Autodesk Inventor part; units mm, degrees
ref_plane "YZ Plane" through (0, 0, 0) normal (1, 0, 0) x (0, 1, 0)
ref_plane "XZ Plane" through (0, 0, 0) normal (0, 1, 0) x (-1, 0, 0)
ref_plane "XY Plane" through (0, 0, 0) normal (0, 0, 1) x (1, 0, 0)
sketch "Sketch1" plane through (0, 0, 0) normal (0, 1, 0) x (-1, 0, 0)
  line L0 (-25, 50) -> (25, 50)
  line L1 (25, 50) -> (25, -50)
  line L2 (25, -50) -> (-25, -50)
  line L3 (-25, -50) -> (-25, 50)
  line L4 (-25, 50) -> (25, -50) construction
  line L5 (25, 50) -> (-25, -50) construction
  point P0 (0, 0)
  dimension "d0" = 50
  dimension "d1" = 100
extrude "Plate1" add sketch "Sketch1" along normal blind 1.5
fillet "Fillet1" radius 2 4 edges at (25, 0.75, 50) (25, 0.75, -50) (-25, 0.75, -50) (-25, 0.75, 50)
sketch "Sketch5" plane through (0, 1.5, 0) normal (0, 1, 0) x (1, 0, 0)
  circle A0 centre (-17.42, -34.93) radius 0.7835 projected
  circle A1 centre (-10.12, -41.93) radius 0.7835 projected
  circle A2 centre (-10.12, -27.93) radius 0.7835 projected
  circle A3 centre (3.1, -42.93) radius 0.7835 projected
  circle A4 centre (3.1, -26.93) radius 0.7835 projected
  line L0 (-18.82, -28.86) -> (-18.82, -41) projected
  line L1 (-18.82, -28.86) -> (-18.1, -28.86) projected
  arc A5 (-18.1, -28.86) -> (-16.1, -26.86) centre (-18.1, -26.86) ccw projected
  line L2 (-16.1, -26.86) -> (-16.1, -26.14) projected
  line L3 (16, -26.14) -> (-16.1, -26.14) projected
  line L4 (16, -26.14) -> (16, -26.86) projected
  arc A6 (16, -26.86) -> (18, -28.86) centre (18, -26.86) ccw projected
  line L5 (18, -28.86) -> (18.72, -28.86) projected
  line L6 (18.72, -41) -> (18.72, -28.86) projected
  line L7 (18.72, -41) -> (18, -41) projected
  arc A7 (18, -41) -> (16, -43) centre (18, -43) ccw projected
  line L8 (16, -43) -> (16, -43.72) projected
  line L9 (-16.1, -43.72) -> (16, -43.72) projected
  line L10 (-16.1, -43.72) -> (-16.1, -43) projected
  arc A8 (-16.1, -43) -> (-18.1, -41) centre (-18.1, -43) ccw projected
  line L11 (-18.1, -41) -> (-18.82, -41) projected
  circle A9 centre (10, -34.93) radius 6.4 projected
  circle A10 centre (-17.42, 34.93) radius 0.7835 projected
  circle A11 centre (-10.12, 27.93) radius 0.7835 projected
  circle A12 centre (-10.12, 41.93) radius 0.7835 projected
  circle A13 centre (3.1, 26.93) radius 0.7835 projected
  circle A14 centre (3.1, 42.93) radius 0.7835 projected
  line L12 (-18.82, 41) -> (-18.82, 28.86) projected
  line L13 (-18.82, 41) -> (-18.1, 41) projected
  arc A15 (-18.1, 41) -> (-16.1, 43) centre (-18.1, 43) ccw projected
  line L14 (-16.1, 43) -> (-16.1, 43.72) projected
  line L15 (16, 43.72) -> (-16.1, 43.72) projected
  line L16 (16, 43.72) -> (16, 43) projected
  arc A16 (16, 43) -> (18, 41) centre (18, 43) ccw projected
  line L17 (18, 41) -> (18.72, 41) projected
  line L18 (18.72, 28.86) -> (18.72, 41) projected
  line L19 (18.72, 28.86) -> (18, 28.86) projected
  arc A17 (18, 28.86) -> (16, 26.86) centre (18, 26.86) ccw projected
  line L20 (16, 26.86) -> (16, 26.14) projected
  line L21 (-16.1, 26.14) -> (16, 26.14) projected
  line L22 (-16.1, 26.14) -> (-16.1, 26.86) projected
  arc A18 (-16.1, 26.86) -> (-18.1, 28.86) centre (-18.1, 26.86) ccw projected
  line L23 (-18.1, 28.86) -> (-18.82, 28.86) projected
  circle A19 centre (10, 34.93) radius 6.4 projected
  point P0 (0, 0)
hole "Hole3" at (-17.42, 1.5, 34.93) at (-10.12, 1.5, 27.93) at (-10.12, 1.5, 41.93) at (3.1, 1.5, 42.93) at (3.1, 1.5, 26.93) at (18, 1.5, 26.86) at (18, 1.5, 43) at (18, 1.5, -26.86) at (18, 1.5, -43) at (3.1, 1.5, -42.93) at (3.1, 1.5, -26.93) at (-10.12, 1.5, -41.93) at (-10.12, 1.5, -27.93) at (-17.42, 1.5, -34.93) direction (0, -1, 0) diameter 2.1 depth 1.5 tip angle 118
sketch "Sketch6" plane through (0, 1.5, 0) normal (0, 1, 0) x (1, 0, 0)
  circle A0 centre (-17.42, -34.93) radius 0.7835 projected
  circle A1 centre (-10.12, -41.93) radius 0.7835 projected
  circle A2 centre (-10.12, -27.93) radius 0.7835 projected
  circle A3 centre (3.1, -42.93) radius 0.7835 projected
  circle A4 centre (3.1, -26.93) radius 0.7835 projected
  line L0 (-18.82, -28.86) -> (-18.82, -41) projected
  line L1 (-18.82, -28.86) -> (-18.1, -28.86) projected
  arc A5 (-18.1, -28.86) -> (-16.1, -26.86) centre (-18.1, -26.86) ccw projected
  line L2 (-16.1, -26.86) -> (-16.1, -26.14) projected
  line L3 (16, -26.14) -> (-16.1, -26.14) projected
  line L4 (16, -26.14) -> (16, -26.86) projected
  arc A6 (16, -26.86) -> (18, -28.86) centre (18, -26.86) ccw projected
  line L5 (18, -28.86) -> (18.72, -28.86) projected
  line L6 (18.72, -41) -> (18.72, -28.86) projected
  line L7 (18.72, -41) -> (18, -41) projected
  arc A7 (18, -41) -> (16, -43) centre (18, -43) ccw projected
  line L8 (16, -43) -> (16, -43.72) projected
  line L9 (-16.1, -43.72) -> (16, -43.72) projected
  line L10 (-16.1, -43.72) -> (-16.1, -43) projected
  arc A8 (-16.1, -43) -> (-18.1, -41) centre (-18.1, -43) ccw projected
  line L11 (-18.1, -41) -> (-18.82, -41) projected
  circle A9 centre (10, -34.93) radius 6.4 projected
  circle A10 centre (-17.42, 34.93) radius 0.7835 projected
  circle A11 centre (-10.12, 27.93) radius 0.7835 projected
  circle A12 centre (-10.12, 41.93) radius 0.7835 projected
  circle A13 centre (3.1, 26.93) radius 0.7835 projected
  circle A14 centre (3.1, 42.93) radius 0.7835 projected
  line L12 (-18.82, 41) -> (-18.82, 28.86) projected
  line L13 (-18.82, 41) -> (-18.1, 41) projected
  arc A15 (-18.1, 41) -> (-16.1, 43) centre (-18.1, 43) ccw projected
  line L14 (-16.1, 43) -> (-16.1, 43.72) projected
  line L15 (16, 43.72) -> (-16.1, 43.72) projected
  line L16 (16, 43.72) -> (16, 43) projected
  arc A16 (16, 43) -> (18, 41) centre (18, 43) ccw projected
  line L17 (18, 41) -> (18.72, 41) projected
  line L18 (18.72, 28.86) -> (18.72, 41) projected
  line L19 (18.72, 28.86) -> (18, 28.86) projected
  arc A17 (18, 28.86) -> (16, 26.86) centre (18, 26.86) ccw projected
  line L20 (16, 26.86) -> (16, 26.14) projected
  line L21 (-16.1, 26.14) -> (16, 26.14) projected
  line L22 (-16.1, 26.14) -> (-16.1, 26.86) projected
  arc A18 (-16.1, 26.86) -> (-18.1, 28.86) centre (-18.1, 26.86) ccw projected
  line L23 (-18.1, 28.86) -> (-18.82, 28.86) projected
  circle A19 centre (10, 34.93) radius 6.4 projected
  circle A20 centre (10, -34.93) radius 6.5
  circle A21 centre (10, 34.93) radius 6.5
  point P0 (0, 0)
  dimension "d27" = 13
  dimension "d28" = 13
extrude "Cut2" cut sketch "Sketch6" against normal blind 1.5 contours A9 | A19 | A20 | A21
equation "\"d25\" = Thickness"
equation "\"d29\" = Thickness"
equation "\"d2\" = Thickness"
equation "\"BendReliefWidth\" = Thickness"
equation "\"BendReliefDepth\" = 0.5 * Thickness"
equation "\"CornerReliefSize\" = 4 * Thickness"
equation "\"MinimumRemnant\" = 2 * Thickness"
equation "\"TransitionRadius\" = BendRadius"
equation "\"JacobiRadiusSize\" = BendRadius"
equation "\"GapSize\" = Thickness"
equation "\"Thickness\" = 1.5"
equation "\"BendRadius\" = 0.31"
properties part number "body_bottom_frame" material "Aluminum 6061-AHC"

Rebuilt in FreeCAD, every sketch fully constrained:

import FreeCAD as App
import Part
import Sketcher

V = App.Vector


def edges_at(feature, points):
    """Names of the edges that pass closest to the given points."""
    edges = feature.Shape.Edges
    near = lambda p: min(range(len(edges)), key=lambda i: edges[i].distToShape(Part.Vertex(*p))[0])
    return sorted({f"Edge{near(p) + 1}" for p in points})

doc = App.newDocument("Part")
params = doc.addObject("Spreadsheet::Sheet", "Params")
for row, (alias, value) in enumerate([
    ("sketch1_width", "50 mm"),
    ("sketch1_height", "100 mm"),
    ("pad1_length", "1.5 mm"),
    ("fillet_radius", "2 mm"),
    ("sketch2_diameter", "2.1 mm"),
    ("hole_diameter", "2.1 mm"),
    ("hole_depth", "1.5 mm"),
    ("sketch3_diameter", "13 mm"),
    ("pocket1_length", "1.5 mm"),
], start=1):
    params.set(f"A{row}", alias)
    params.set(f"B{row}", "=" + value)
    params.setAlias(f"B{row}", alias)

body = doc.addObject("PartDesign::Body", "Body")

sketch1 = body.newObject("Sketcher::SketchObject", "Sketch")
sketch1.AttachmentSupport = (doc.getObject("XZ_Plane"), [""])
sketch1.MapMode = "FlatFace"
sketch1.addGeometry([
    Part.LineSegment(V(-25, 50, 0), V(25, 50, 0)),
    Part.LineSegment(V(25, 50, 0), V(25, -50, 0)),
    Part.LineSegment(V(25, -50, 0), V(-25, -50, 0)),
    Part.LineSegment(V(-25, -50, 0), V(-25, 50, 0)),
], False)
sketch1.addConstraint([
    Sketcher.Constraint("Coincident", 0, 2, 1, 1),
    Sketcher.Constraint("Coincident", 1, 2, 2, 1),
    Sketcher.Constraint("Coincident", 2, 2, 3, 1),
    Sketcher.Constraint("Coincident", 3, 2, 0, 1),
    Sketcher.Constraint("Horizontal", 0),
    Sketcher.Constraint("Vertical", 1),
    Sketcher.Constraint("Horizontal", 2),
    Sketcher.Constraint("Vertical", 3),
    Sketcher.Constraint("Symmetric", 0, 2, 2, 2, -1, 1),
    Sketcher.Constraint("DistanceX", 0, 1, 0, 2, 50.0),
    Sketcher.Constraint("DistanceY", 1, 2, 1, 1, 100.0),
])
sketch1.setExpression("Constraints[9]", "Params.sketch1_width")
sketch1.setExpression("Constraints[10]", "Params.sketch1_height")
pad1 = body.newObject("PartDesign::Pad", "Pad")
pad1.Profile = sketch1
pad1.setExpression("Length", "Params.pad1_length")
pad1.Reversed = True
doc.recompute()

fillet = body.newObject("PartDesign::Fillet", "Fillet")
fillet.Base = (pad1, edges_at(pad1, [
    (25, 0.75, 50),
    (25, 0.75, -50),
    (-25, 0.75, -50),
    (-25, 0.75, 50),
]))
fillet.setExpression("Radius", "Params.fillet_radius")

sketch2 = body.newObject("Sketcher::SketchObject", "Sketch001")
sketch2.AttachmentSupport = (doc.getObject("XZ_Plane"), [""])
sketch2.MapMode = "FlatFace"
sketch2.AttachmentOffset = App.Placement(V(0, 0, -1.5), App.Rotation())
sketch2.addGeometry([
    Part.Circle(V(-17.4, 34.9, 0), V(0, 0, 1), 1.1),
    Part.Circle(V(-10.1, 27.9, 0), V(0, 0, 1), 1.1),
    Part.Circle(V(-10.1, 41.9, 0), V(0, 0, 1), 1.1),
    Part.Circle(V(3.1, 42.9, 0), V(0, 0, 1), 1.1),
    Part.Circle(V(3.1, 26.9, 0), V(0, 0, 1), 1.1),
    Part.Circle(V(18, 26.9, 0), V(0, 0, 1), 1.1),
    Part.Circle(V(18, 43, 0), V(0, 0, 1), 1.1),
    Part.Circle(V(18, -26.9, 0), V(0, 0, 1), 1.1),
    Part.Circle(V(18, -43, 0), V(0, 0, 1), 1.1),
    Part.Circle(V(3.1, -42.9, 0), V(0, 0, 1), 1.1),
    Part.Circle(V(3.1, -26.9, 0), V(0, 0, 1), 1.1),
    Part.Circle(V(-10.1, -41.9, 0), V(0, 0, 1), 1.1),
    Part.Circle(V(-10.1, -27.9, 0), V(0, 0, 1), 1.1),
    Part.Circle(V(-17.4, -34.9, 0), V(0, 0, 1), 1.1),
], False)
sketch2.addConstraint([
    Sketcher.Constraint("Equal", 0, 1),
    Sketcher.Constraint("Equal", 1, 2),
    Sketcher.Constraint("Equal", 2, 3),
    Sketcher.Constraint("Equal", 3, 4),
    Sketcher.Constraint("Equal", 4, 5),
    Sketcher.Constraint("Equal", 5, 6),
    Sketcher.Constraint("Equal", 6, 7),
    Sketcher.Constraint("Equal", 7, 8),
    Sketcher.Constraint("Equal", 8, 9),
    Sketcher.Constraint("Equal", 9, 10),
    Sketcher.Constraint("Equal", 10, 11),
    Sketcher.Constraint("Equal", 11, 12),
    Sketcher.Constraint("Equal", 12, 13),
    Sketcher.Constraint("Symmetric", 5, 3, 7, 3, -1),
    Sketcher.Constraint("Symmetric", 6, 3, 8, 3, -1),
    Sketcher.Constraint("Symmetric", 3, 3, 9, 3, -1),
    Sketcher.Constraint("Symmetric", 4, 3, 10, 3, -1),
    Sketcher.Constraint("Symmetric", 2, 3, 11, 3, -1),
    Sketcher.Constraint("Symmetric", 1, 3, 12, 3, -1),
    Sketcher.Constraint("Symmetric", 0, 3, 13, 3, -1),
    Sketcher.Constraint("Vertical", 1, 3, 2, 3),
    Sketcher.Constraint("Vertical", 3, 3, 4, 3),
    Sketcher.Constraint("Vertical", 5, 3, 6, 3),
    Sketcher.Constraint("Diameter", 0, 2.1),
    Sketcher.Constraint("DistanceX", -1, 1, 5, 3, 18.0),
    Sketcher.Constraint("DistanceY", -1, 1, 6, 3, 43.0),
    Sketcher.Constraint("DistanceY", 1, 3, 0, 3, 7.0),
    Sketcher.Constraint("DistanceY", 0, 3, 2, 3, 7.0),
    Sketcher.Constraint("DistanceY", 2, 3, 3, 3, 1.0),
    Sketcher.Constraint("DistanceY", 4, 3, 1, 3, 1.0),
    Sketcher.Constraint("DistanceX", -1, 1, 3, 3, 3.1),
    Sketcher.Constraint("DistanceX", 0, 3, 1, 3, 7.3),
    Sketcher.Constraint("DistanceX", 0, 3, -1, 1, 17.42),
    Sketcher.Constraint("DistanceY", -1, 1, 0, 3, 34.93),
    Sketcher.Constraint("DistanceY", -1, 1, 5, 3, 26.86),
])
sketch2.setExpression("Constraints[23]", "Params.sketch2_diameter")
doc.recompute()
hole = body.newObject("PartDesign::Hole", "Hole")
hole.Profile = sketch2
hole.ThreadType = "None"
hole.setExpression("Diameter", "Params.hole_diameter")
hole.DepthType = "Dimension"
hole.setExpression("Depth", "Params.hole_depth")
hole.DrillPoint = "Angled"
hole.DrillPointAngle = 118
hole.Reversed = True

sketch3 = body.newObject("Sketcher::SketchObject", "Sketch002")
sketch3.AttachmentSupport = (doc.getObject("XZ_Plane"), [""])
sketch3.MapMode = "FlatFace"
sketch3.AttachmentOffset = App.Placement(V(0, 0, -1.5), App.Rotation())
sketch3.addGeometry([
    Part.Circle(V(10, 35, 0), V(0, 0, 1), 6),
    Part.Circle(V(10, -35, 0), V(0, 0, 1), 6),
], False)
sketch3.addConstraint([
    Sketcher.Constraint("Equal", 0, 1),
    Sketcher.Constraint("Symmetric", 0, 3, 1, 3, -1),
    Sketcher.Constraint("Diameter", 0, 13.0),
    Sketcher.Constraint("DistanceX", -1, 1, 0, 3, 10.0),
    Sketcher.Constraint("DistanceY", -1, 1, 0, 3, 34.93),
])
sketch3.setExpression("Constraints[2]", "Params.sketch3_diameter")
pocket1 = body.newObject("PartDesign::Pocket", "Pocket")
pocket1.Profile = sketch3
pocket1.setExpression("Length", "Params.pocket1_length")
pocket1.Reversed = True

doc.recompute()
